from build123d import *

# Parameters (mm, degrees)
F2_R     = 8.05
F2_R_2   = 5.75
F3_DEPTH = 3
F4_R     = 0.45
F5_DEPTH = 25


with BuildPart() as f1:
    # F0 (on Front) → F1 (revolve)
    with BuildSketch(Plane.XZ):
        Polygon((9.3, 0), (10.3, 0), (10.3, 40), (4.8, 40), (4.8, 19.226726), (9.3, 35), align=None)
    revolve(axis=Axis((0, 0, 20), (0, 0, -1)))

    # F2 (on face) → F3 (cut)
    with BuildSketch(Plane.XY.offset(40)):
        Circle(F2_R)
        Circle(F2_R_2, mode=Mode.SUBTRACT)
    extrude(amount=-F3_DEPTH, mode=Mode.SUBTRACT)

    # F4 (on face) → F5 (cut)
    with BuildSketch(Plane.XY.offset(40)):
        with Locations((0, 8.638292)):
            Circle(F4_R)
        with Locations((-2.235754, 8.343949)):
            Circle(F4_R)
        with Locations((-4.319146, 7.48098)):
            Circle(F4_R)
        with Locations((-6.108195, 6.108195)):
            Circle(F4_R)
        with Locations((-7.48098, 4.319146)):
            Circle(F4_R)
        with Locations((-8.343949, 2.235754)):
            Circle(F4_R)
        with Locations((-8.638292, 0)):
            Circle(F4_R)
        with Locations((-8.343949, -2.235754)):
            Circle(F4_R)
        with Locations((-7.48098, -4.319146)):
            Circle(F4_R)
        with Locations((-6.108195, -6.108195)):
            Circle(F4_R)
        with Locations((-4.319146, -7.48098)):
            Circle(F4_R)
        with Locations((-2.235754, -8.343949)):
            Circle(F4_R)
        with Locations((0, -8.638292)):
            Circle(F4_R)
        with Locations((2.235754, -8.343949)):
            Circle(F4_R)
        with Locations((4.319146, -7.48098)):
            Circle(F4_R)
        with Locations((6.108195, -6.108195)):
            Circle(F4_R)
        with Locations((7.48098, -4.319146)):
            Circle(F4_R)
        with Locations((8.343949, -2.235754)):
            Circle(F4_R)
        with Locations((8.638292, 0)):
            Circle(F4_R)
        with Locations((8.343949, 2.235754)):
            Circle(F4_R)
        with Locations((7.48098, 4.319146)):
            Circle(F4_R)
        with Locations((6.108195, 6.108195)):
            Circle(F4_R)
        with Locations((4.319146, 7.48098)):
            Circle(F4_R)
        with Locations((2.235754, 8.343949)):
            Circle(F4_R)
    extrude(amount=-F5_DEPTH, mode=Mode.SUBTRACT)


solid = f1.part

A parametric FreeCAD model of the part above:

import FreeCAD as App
import Part
import Sketcher

V = App.Vector

doc = App.newDocument("Part")
body = doc.addObject("PartDesign::Body", "Body")

# Sketch on XZ plane
sketch1 = body.newObject("Sketcher::SketchObject", "Sketch")
sketch1.AttachmentSupport = (doc.getObject("XZ_Plane"), [""])
sketch1.MapMode = "FlatFace"
sketch1.addGeometry([
    Part.LineSegment(V(9.3, 0, 0), V(10.3, 0, 0)),  # 0
    Part.LineSegment(V(10.3, 0, 0), V(10.3, 40, 0)),  # 1
    Part.LineSegment(V(10.3, 40, 0), V(4.8, 40, 0)),  # 2
    Part.LineSegment(V(4.8, 40, 0), V(4.8, 19.226726, 0)),  # 3
    Part.LineSegment(V(4.8, 19.226726, 0), V(9.3, 35, 0)),  # 4
    Part.LineSegment(V(9.3, 35, 0), V(9.3, 0, 0)),  # 5
], False)
sketch1.addConstraint([
    Sketcher.Constraint("Coincident", 0, 2, 1, 1),
    Sketcher.Constraint("Coincident", 1, 2, 2, 1),
    Sketcher.Constraint("Coincident", 2, 2, 3, 1),
    Sketcher.Constraint("Coincident", 3, 2, 4, 1),
    Sketcher.Constraint("Coincident", 4, 2, 5, 1),
    Sketcher.Constraint("Coincident", 5, 2, 0, 1),
    Sketcher.Constraint("Horizontal", 0),
    Sketcher.Constraint("Vertical", 1),
    Sketcher.Constraint("Horizontal", 2),
    Sketcher.Constraint("Vertical", 3),
    Sketcher.Constraint("Vertical", 5),
    Sketcher.Constraint("PointOnObject", 0, 2, -1),
    Sketcher.Constraint("DistanceX", 0, 1, 0, 2, 1.0),
    Sketcher.Constraint("DistanceY", 1, 1, 1, 2, 40.0),
    Sketcher.Constraint("DistanceY", 5, 2, 5, 1, 35.0),
    Sketcher.Constraint("DistanceX", 2, 2, 2, 1, 5.5),
    Sketcher.Constraint("DistanceX", -1, 1, 0, 2, 10.3),
    Sketcher.Constraint("DistanceY", 3, 2, 3, 1, 20.773274),
])
revolution = body.newObject("PartDesign::Revolution", "Revolution")
revolution.Profile = sketch1
revolution.ReferenceAxis = (sketch1, ["V_Axis"])
revolution.Angle = 360

# Sketch on XY plane
sketch2 = body.newObject("Sketcher::SketchObject", "Sketch001")
sketch2.AttachmentSupport = (doc.getObject("XY_Plane"), [""])
sketch2.MapMode = "FlatFace"
sketch2.AttachmentOffset = App.Placement(V(0, 0, 40), App.Rotation())
sketch2.addGeometry([
    Part.Circle(V(0, 0, 0), V(0, 0, 1), 8.05),
    Part.Circle(V(0, 0, 0), V(0, 0, 1), 5.75),
], False)
sketch2.addConstraint([
    Sketcher.Constraint("Coincident", 0, 3, -1, 1),
    Sketcher.Constraint("Coincident", 1, 3, -1, 1),
    Sketcher.Constraint("Diameter", 0, 16.1),
    Sketcher.Constraint("Diameter", 1, 11.5),
])
pocket1 = body.newObject("PartDesign::Pocket", "Pocket")
pocket1.Profile = sketch2
pocket1.Length = 3

# Sketch on XY plane
sketch3 = body.newObject("Sketcher::SketchObject", "Sketch002")
sketch3.AttachmentSupport = (doc.getObject("XY_Plane"), [""])
sketch3.MapMode = "FlatFace"
sketch3.AttachmentOffset = App.Placement(V(0, 0, 40), App.Rotation())
sketch3.addGeometry([
    Part.Circle(V(0, 8.638292, 0), V(0, 0, 1), 0.45),  # 0
    Part.Circle(V(-2.235754, 8.343949, 0), V(0, 0, 1), 0.45),  # 1
    Part.Circle(V(-4.319146, 7.48098, 0), V(0, 0, 1), 0.45),  # 2
    Part.Circle(V(-6.108195, 6.108195, 0), V(0, 0, 1), 0.45),  # 3
    Part.Circle(V(-7.48098, 4.319146, 0), V(0, 0, 1), 0.45),  # 4
    Part.Circle(V(-8.343949, 2.235754, 0), V(0, 0, 1), 0.45),  # 5
    Part.Circle(V(-8.638292, 0, 0), V(0, 0, 1), 0.45),  # 6
    Part.Circle(V(-8.343949, -2.235754, 0), V(0, 0, 1), 0.45),  # 7
    Part.Circle(V(-7.48098, -4.319146, 0), V(0, 0, 1), 0.45),  # 8
    Part.Circle(V(-6.108195, -6.108195, 0), V(0, 0, 1), 0.45),  # 9
    Part.Circle(V(-4.319146, -7.48098, 0), V(0, 0, 1), 0.45),  # 10
    Part.Circle(V(-2.235754, -8.343949, 0), V(0, 0, 1), 0.45),  # 11
    Part.Circle(V(0, -8.638292, 0), V(0, 0, 1), 0.45),  # 12
    Part.Circle(V(2.235754, -8.343949, 0), V(0, 0, 1), 0.45),  # 13
    Part.Circle(V(4.319146, -7.48098, 0), V(0, 0, 1), 0.45),  # 14
    Part.Circle(V(6.108195, -6.108195, 0), V(0, 0, 1), 0.45),  # 15
    Part.Circle(V(7.48098, -4.319146, 0), V(0, 0, 1), 0.45),  # 16
    Part.Circle(V(8.343949, -2.235754, 0), V(0, 0, 1), 0.45),  # 17
    Part.Circle(V(8.638292, 0, 0), V(0, 0, 1), 0.45),  # 18
    Part.Circle(V(8.343949, 2.235754, 0), V(0, 0, 1), 0.45),  # 19
    Part.Circle(V(7.48098, 4.319146, 0), V(0, 0, 1), 0.45),  # 20
    Part.Circle(V(6.108195, 6.108195, 0), V(0, 0, 1), 0.45),  # 21
    Part.Circle(V(4.319146, 7.48098, 0), V(0, 0, 1), 0.45),  # 22
    Part.Circle(V(2.235754, 8.343949, 0), V(0, 0, 1), 0.45),  # 23
], False)
sketch3.addConstraint([
    Sketcher.Constraint("Equal", 0, 1),
    Sketcher.Constraint("Equal", 1, 2),
    Sketcher.Constraint("Equal", 2, 3),
    Sketcher.Constraint("Equal", 3, 4),
    Sketcher.Constraint("Equal", 4, 5),
    Sketcher.Constraint("Equal", 5, 6),
    Sketcher.Constraint("Equal", 6, 7),
    Sketcher.Constraint("Equal", 7, 8),
    Sketcher.Constraint("Equal", 8, 9),
    Sketcher.Constraint("Equal", 9, 10),
    Sketcher.Constraint("Equal", 10, 11),
    Sketcher.Constraint("Equal", 11, 12),
    Sketcher.Constraint("Equal", 12, 13),
    Sketcher.Constraint("Equal", 13, 14),
    Sketcher.Constraint("Equal", 14, 15),
    Sketcher.Constraint("Equal", 15, 16),
    Sketcher.Constraint("Equal", 16, 17),
    Sketcher.Constraint("Equal", 17, 18),
    Sketcher.Constraint("Equal", 18, 19),
    Sketcher.Constraint("Equal", 19, 20),
    Sketcher.Constraint("Equal", 20, 21),
    Sketcher.Constraint("Equal", 21, 22),
    Sketcher.Constraint("Equal", 22, 23),
    Sketcher.Constraint("Symmetric", 0, 3, 12, 3, -1, 1),
    Sketcher.Constraint("Symmetric", 1, 3, 13, 3, -1, 1),
    Sketcher.Constraint("Symmetric", 2, 3, 14, 3, -1, 1),
    Sketcher.Constraint("Symmetric", 3, 3, 15, 3, -1, 1),
    Sketcher.Constraint("Symmetric", 4, 3, 16, 3, -1, 1),
    Sketcher.Constraint("Symmetric", 5, 3, 17, 3, -1, 1),
    Sketcher.Constraint("Symmetric", 6, 3, 18, 3, -1, 1),
    Sketcher.Constraint("Symmetric", 7, 3, 19, 3, -1, 1),
    Sketcher.Constraint("Symmetric", 8, 3, 20, 3, -1, 1),
    Sketcher.Constraint("Symmetric", 9, 3, 21, 3, -1, 1),
    Sketcher.Constraint("Symmetric", 10, 3, 22, 3, -1, 1),
    Sketcher.Constraint("Symmetric", 11, 3, 23, 3, -1, 1),
    Sketcher.Constraint("Symmetric", 11, 3, 13, 3, -2),
    Sketcher.Constraint("Symmetric", 10, 3, 14, 3, -2),
    Sketcher.Constraint("Symmetric", 9, 3, 15, 3, -2),
    Sketcher.Constraint("Symmetric", 8, 3, 16, 3, -2),
    Sketcher.Constraint("Symmetric", 7, 3, 17, 3, -2),
    Sketcher.Constraint("PointOnObject", 0, 3, -2),
    Sketcher.Constraint("PointOnObject", 6, 3, -1),
    Sketcher.Constraint("Diameter", 0, 0.9),
    Sketcher.Constraint("DistanceY", 7, 3, 4, 3, 6.5549),
    Sketcher.Constraint("DistanceX", 10, 3, 13, 3, 6.5549),
    Sketcher.Constraint("DistanceY", -1, 1, 1, 3, 8.343949),
    Sketcher.Constraint("DistanceY", -1, 1, 2, 3, 7.48098),
    Sketcher.Constraint("DistanceX", 4, 3, -1, 1, 7.48098),
    Sketcher.Constraint("DistanceX", 5, 3, -1, 1, 8.343949),
    Sketcher.Constraint("DistanceX", 2, 3, 1, 3, 2.083392),
    Sketcher.Constraint("DistanceX", 3, 3, 2, 3, 1.789049),
    Sketcher.Constraint("DistanceY", 4, 3, 3, 3, 1.789049),
    Sketcher.Constraint("DistanceY", 5, 3, 4, 3, 2.083392),
    Sketcher.Constraint("DistanceY", -1, 1, 0, 3, 8.638292),
    Sketcher.Constraint("DistanceX", 6, 3, -1, 1, 8.638292),
])
pocket2 = body.newObject("PartDesign::Pocket", "Pocket001")
pocket2.Profile = sketch3
pocket2.Length = 25

doc.recompute()
